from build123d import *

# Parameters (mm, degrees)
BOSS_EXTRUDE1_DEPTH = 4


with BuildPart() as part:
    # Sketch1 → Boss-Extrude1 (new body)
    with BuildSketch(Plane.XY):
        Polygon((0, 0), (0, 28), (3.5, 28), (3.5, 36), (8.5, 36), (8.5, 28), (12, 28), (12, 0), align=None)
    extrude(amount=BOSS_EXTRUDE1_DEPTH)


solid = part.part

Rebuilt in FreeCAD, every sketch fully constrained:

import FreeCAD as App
import Part
import Sketcher

V = App.Vector
Q = App.Units.Quantity


def add_polygon(sketch, points):
    """Adds a closed chain of lines whose ends are joined by coincident constraints."""
    first, n = sketch.GeometryCount, len(points)
    for a, b in zip(points, points[1:] + points[:1]):
        sketch.addGeometry(Part.LineSegment(App.Vector(*a, 0), App.Vector(*b, 0)), False)
    for i in range(n):
        sketch.addConstraint(Sketcher.Constraint("Coincident", first + i, 2, first + (i + 1) % n, 1))

doc = App.newDocument("Part")
body = doc.addObject("PartDesign::Body", "Body")

sketch1 = doc.addObject("Sketcher::SketchObject", "Sketch")
body.addObject(sketch1)
sketch1.AttachmentSupport = (doc.XY_Plane, [""])
sketch1.MapMode = "FlatFace"
add_polygon(sketch1, [(0, 28), (0, 0), (12, 0), (12, 28), (8.5, 28), (8.5, 36), (3.5, 36), (3.5, 28)])
sketch1.addConstraint(Sketcher.Constraint("Vertical", 0))
sketch1.addConstraint(Sketcher.Constraint("Horizontal", 1))
sketch1.addConstraint(Sketcher.Constraint("Vertical", 2))
sketch1.addConstraint(Sketcher.Constraint("Horizontal", 3))
sketch1.addConstraint(Sketcher.Constraint("Vertical", 4))
sketch1.addConstraint(Sketcher.Constraint("Horizontal", 5))
sketch1.addConstraint(Sketcher.Constraint("Vertical", 6))
sketch1.addConstraint(Sketcher.Constraint("Horizontal", 7))
sketch1.addConstraint(Sketcher.Constraint("Coincident", 0, 2, -1, 1))
sketch1.addConstraint(Sketcher.Constraint("Horizontal", 3, 2, 6, 2))
sketch1.addConstraint(Sketcher.Constraint("Equal", 3, 7))
sketch1.addConstraint(Sketcher.Constraint("DistanceX", 1, 1, 1, 2, Q("12 mm")))
sketch1.addConstraint(Sketcher.Constraint("DistanceX", 5, 2, 5, 1, Q("5 mm")))
sketch1.addConstraint(Sketcher.Constraint("DistanceY", 0, 2, 0, 1, Q("28 mm")))
sketch1.addConstraint(Sketcher.Constraint("DistanceY", 4, 1, 4, 2, Q("8 mm")))
pad1 = doc.addObject("PartDesign::Pad", "Pad")
body.addObject(pad1)
pad1.Profile = sketch1
pad1.Length = 4

doc.recompute()
